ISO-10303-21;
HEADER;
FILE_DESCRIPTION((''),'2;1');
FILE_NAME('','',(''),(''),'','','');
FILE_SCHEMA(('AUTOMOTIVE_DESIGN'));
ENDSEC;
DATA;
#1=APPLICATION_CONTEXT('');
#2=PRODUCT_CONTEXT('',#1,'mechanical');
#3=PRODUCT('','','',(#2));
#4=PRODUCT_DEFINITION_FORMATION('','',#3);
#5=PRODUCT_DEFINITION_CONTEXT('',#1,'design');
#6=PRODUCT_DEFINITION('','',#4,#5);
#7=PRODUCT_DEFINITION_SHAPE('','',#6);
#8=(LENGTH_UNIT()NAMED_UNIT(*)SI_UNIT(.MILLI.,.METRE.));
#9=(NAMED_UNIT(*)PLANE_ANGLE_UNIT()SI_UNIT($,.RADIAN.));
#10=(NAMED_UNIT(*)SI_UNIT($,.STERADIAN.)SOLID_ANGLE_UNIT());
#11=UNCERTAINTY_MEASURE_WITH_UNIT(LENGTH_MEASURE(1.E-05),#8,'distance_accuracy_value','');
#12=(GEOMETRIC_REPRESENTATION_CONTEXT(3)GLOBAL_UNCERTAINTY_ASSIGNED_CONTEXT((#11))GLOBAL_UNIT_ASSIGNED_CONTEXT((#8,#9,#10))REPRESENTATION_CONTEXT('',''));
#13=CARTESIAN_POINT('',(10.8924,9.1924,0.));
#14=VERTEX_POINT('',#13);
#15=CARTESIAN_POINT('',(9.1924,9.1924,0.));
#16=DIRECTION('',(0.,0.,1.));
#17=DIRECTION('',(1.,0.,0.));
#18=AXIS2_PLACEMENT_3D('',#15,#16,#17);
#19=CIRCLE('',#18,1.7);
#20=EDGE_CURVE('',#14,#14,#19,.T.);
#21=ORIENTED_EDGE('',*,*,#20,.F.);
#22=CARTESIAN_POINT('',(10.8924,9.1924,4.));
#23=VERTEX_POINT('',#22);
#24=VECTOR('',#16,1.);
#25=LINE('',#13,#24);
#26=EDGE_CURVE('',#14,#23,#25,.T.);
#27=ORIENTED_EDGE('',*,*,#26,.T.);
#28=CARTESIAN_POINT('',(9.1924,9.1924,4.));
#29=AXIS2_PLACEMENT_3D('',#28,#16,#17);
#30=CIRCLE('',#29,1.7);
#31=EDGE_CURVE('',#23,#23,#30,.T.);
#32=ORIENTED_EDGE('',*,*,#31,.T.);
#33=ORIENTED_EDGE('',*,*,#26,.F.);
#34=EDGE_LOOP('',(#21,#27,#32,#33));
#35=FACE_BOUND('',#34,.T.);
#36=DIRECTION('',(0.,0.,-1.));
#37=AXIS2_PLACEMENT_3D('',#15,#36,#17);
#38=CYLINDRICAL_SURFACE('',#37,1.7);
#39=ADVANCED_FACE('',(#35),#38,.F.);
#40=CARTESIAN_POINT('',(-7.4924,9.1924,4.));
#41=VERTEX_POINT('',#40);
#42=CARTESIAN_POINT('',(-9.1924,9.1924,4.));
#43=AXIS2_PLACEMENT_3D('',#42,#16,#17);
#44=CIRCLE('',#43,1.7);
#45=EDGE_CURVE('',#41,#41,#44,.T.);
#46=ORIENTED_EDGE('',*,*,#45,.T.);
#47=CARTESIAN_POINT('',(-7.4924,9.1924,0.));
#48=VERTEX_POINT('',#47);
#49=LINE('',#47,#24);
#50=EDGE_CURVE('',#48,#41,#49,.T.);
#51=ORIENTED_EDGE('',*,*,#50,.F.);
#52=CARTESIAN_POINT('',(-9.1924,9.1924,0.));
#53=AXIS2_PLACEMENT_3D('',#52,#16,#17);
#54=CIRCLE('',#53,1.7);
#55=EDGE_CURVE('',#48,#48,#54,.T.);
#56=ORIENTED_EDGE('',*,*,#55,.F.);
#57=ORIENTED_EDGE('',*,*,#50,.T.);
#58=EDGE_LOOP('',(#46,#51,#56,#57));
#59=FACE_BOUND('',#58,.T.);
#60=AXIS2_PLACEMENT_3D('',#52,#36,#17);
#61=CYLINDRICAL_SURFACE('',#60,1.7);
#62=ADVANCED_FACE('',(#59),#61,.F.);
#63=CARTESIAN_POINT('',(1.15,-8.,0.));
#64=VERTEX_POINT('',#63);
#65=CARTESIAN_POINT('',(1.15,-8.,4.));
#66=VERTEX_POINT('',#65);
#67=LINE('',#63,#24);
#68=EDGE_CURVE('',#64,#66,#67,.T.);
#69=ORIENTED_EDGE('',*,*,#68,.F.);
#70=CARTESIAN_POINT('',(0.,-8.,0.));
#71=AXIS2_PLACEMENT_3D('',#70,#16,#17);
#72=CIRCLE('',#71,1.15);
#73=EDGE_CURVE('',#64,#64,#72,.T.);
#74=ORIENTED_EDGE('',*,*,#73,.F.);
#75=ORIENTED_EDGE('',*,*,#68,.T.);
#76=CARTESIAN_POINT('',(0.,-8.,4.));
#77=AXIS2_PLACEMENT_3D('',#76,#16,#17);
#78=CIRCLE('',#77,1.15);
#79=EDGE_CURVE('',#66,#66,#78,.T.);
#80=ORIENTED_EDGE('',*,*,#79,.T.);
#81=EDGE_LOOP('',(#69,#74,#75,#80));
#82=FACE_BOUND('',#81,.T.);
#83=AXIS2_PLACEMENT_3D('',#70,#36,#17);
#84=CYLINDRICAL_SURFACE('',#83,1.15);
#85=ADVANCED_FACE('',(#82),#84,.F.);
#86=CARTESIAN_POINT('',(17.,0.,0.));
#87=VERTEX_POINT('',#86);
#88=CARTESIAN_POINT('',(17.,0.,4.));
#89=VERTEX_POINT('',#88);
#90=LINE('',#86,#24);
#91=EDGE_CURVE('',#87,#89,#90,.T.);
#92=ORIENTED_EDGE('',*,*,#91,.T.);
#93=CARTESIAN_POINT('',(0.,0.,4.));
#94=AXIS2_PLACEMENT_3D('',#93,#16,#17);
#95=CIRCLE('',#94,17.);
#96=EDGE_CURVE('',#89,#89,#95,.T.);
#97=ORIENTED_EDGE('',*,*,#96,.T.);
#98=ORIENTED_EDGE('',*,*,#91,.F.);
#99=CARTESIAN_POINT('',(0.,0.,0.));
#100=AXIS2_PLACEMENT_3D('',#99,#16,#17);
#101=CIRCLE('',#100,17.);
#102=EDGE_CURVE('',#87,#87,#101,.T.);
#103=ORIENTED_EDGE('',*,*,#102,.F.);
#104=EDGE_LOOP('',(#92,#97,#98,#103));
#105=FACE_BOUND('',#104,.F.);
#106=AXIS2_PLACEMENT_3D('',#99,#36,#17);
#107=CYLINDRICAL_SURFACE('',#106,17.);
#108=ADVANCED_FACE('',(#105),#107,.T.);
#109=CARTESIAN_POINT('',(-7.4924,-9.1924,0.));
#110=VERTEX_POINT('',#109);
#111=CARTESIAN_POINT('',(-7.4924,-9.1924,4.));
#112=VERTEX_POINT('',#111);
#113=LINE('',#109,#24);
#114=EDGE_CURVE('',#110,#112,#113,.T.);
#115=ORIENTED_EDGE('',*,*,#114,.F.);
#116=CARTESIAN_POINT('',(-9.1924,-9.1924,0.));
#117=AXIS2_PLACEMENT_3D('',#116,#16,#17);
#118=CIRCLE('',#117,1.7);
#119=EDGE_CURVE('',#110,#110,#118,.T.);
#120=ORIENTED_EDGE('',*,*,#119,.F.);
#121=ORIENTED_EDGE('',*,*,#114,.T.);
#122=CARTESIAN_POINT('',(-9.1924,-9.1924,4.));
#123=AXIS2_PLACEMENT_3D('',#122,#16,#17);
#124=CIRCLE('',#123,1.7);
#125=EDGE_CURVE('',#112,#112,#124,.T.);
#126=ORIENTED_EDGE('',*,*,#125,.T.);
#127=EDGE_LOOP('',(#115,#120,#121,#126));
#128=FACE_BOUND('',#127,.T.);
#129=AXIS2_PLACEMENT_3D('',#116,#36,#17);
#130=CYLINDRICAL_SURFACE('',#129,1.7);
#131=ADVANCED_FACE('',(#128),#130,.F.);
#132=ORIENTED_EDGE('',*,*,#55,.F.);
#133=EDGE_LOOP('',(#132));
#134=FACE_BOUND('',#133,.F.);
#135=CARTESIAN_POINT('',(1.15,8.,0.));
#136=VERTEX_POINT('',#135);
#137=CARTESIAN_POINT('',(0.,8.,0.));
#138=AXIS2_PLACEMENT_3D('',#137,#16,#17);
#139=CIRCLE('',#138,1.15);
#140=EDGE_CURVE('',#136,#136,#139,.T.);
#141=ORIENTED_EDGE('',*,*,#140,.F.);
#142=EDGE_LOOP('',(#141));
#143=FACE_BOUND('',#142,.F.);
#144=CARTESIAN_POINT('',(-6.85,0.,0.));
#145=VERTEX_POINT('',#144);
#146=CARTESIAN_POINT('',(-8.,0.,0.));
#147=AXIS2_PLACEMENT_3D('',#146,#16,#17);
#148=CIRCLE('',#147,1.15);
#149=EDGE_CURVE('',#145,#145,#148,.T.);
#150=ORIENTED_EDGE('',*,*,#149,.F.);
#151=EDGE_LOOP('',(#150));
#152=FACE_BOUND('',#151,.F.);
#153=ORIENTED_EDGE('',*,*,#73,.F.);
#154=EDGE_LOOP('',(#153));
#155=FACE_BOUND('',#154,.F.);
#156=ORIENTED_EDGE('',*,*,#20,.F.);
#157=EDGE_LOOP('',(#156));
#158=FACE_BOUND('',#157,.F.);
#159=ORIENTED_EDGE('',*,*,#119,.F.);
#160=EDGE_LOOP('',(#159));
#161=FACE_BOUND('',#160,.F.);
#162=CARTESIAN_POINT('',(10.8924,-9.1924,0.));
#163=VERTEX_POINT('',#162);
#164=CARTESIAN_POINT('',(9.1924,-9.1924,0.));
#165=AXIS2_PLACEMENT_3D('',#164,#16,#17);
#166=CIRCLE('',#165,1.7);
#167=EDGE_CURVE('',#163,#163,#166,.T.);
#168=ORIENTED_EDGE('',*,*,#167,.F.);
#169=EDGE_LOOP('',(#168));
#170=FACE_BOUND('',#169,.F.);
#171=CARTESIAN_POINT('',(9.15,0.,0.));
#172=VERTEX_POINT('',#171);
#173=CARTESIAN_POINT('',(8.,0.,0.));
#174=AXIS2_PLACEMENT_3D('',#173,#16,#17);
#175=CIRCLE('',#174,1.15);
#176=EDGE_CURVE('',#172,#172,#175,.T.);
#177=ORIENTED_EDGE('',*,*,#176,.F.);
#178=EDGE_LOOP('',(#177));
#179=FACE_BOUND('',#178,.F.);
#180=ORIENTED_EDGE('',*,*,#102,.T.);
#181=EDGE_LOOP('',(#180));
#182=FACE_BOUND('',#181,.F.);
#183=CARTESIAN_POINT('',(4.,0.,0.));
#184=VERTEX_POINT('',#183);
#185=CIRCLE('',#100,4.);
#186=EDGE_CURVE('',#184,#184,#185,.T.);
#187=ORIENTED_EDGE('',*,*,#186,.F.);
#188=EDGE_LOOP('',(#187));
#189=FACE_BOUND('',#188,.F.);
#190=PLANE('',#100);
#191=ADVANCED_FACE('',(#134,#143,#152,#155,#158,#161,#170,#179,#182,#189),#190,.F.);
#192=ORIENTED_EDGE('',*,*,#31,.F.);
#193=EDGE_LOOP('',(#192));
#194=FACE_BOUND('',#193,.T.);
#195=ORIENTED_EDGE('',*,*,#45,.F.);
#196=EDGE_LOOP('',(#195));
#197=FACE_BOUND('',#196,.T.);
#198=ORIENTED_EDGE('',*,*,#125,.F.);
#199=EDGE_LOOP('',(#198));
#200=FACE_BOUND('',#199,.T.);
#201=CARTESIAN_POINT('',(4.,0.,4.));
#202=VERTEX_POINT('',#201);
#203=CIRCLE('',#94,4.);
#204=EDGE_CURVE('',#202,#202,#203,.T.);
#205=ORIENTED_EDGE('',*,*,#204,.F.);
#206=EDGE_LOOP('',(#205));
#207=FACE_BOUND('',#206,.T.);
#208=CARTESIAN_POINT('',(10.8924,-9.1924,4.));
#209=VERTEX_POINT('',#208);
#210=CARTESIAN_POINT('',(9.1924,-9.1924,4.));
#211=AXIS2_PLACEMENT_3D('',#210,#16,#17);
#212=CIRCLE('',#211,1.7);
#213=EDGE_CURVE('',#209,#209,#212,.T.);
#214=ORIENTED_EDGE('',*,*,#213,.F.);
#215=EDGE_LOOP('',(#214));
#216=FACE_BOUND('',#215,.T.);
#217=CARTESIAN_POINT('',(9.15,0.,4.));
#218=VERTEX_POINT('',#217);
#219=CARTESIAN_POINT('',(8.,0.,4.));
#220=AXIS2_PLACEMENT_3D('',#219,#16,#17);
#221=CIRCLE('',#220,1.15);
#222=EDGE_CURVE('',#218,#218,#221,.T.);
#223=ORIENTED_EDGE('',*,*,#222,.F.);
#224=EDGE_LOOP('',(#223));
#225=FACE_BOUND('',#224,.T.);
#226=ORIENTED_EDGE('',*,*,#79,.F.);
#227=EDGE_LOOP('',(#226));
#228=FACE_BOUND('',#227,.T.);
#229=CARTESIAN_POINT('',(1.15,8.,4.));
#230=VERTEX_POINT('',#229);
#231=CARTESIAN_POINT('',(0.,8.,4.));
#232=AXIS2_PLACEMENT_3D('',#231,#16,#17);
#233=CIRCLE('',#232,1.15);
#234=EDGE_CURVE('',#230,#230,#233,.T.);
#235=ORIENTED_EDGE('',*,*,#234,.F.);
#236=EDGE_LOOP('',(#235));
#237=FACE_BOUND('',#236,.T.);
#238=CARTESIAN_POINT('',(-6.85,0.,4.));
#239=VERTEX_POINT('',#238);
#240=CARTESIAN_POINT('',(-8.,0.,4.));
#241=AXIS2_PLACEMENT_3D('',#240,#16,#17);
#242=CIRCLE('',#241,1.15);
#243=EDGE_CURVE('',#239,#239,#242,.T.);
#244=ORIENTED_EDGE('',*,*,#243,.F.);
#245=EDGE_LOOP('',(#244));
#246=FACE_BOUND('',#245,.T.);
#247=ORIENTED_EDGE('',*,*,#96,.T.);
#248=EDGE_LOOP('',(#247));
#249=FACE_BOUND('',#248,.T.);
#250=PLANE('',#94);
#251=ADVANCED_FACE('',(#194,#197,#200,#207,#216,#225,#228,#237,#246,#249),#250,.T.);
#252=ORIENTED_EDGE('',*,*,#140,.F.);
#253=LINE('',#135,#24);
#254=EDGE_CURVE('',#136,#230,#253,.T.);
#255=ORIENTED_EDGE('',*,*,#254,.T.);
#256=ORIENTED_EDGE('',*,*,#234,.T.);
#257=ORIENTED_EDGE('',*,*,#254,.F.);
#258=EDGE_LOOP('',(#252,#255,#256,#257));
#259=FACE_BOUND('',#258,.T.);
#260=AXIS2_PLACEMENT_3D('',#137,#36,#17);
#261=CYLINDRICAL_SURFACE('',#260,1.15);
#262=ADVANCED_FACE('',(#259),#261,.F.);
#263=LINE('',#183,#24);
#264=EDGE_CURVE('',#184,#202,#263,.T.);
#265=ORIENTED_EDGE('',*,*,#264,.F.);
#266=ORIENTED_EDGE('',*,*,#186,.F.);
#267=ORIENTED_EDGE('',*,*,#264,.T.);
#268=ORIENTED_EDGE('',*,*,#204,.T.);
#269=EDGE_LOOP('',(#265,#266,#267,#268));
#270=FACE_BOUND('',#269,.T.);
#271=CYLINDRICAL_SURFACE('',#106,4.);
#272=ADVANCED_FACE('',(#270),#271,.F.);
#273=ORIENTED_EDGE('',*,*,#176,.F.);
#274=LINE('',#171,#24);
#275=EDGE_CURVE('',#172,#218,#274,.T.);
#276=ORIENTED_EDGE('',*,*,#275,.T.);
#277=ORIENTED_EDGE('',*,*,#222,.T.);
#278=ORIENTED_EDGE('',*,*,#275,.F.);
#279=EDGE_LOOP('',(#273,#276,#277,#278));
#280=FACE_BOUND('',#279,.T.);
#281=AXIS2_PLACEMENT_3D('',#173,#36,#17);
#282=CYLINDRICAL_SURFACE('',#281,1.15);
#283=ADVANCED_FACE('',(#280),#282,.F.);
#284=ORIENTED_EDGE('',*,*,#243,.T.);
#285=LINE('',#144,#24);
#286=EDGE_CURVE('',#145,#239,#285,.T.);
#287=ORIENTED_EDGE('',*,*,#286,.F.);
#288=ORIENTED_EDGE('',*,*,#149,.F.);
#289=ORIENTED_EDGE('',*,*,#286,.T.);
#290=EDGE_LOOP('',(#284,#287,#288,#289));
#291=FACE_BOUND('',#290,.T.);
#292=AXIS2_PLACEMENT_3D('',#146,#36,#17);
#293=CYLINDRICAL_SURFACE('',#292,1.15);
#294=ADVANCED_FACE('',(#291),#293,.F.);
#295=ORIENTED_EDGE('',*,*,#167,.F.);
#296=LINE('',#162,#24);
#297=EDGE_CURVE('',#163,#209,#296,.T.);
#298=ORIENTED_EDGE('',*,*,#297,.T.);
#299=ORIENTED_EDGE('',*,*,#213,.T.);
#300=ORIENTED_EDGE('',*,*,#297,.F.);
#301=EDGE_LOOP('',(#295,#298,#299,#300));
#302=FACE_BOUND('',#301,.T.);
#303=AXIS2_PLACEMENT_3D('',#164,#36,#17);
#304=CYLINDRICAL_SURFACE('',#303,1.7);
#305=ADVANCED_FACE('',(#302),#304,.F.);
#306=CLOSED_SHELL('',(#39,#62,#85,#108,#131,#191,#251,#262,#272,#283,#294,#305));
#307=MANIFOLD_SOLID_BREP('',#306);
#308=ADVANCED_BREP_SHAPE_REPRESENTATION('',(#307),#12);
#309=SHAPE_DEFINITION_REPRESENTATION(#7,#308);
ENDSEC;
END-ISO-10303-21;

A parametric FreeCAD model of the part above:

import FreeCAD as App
import Part
import Sketcher
from FreeCAD import Vector

doc = App.newDocument("Part")
body = doc.addObject("PartDesign::Body", "Body")

sketch1 = body.newObject("Sketcher::SketchObject", "Sketch")
sketch1.AttachmentSupport = (doc.getObject("XY_Plane"), [""])
sketch1.MapMode = "FlatFace"
sketch1.addGeometry(Part.Circle(Vector(0, 0, 0), Vector(0, 0, 1), 17), False)
sketch1.addGeometry(Part.Circle(Vector(-9.1924, -9.1924, 0), Vector(0, 0, 1), 1.7), False)
sketch1.addGeometry(Part.Circle(Vector(9.1924, -9.1924, 0), Vector(0, 0, 1), 1.7), False)
sketch1.addGeometry(Part.Circle(Vector(0, -8, 0), Vector(0, 0, 1), 1.15), False)
sketch1.addGeometry(Part.Circle(Vector(-8, 0, 0), Vector(0, 0, 1), 1.15), False)
sketch1.addGeometry(Part.Circle(Vector(-9.1924, 9.1924, 0), Vector(0, 0, 1), 1.7), False)
sketch1.addGeometry(Part.Circle(Vector(0, 0, 0), Vector(0, 0, 1), 4), False)
sketch1.addGeometry(Part.Circle(Vector(8, 0, 0), Vector(0, 0, 1), 1.15), False)
sketch1.addGeometry(Part.Circle(Vector(0, 8, 0), Vector(0, 0, 1), 1.15), False)
sketch1.addGeometry(Part.Circle(Vector(9.1924, 9.1924, 0), Vector(0, 0, 1), 1.7), False)
sketch1.addConstraint(Sketcher.Constraint("Coincident", 0, 3, -1, 1))
sketch1.addConstraint(Sketcher.Constraint("Coincident", 6, 3, -1, 1))
sketch1.addConstraint(Sketcher.Constraint("Equal", 1, 2))
sketch1.addConstraint(Sketcher.Constraint("Equal", 3, 4))
sketch1.addConstraint(Sketcher.Constraint("Equal", 2, 5))
sketch1.addConstraint(Sketcher.Constraint("Equal", 4, 7))
sketch1.addConstraint(Sketcher.Constraint("Equal", 7, 8))
sketch1.addConstraint(Sketcher.Constraint("Equal", 5, 9))
sketch1.addConstraint(Sketcher.Constraint("Symmetric", 2, 3, 5, 3, -1, 1))
sketch1.addConstraint(Sketcher.Constraint("Symmetric", 4, 3, 7, 3, -1, 1))
sketch1.addConstraint(Sketcher.Constraint("Symmetric", 3, 3, 8, 3, -1, 1))
sketch1.addConstraint(Sketcher.Constraint("Symmetric", 1, 3, 9, 3, -1, 1))
sketch1.addConstraint(Sketcher.Constraint("Symmetric", 1, 3, 2, 3, -2))
sketch1.addConstraint(Sketcher.Constraint("PointOnObject", 3, 3, -2))
sketch1.addConstraint(Sketcher.Constraint("PointOnObject", 4, 3, -1))
sketch1.addConstraint(Sketcher.Constraint("Diameter", 0, 34.0))
sketch1.addConstraint(Sketcher.Constraint("Diameter", 6, 8.0))
sketch1.addConstraint(Sketcher.Constraint("Diameter", 1, 3.4))
sketch1.addConstraint(Sketcher.Constraint("Diameter", 3, 2.3))
sketch1.addConstraint(Sketcher.Constraint("DistanceY", 3, 3, -1, 1, 8.0))
sketch1.addConstraint(Sketcher.Constraint("DistanceX", 4, 3, -1, 1, 8.0))
sketch1.addConstraint(Sketcher.Constraint("DistanceX", 1, 3, -1, 1, 9.1924))
sketch1.addConstraint(Sketcher.Constraint("DistanceY", 1, 3, -1, 1, 9.1924))
pad1 = body.newObject("PartDesign::Pad", "Pad")
pad1.Profile = sketch1
pad1.Length = 4

doc.recompute()
